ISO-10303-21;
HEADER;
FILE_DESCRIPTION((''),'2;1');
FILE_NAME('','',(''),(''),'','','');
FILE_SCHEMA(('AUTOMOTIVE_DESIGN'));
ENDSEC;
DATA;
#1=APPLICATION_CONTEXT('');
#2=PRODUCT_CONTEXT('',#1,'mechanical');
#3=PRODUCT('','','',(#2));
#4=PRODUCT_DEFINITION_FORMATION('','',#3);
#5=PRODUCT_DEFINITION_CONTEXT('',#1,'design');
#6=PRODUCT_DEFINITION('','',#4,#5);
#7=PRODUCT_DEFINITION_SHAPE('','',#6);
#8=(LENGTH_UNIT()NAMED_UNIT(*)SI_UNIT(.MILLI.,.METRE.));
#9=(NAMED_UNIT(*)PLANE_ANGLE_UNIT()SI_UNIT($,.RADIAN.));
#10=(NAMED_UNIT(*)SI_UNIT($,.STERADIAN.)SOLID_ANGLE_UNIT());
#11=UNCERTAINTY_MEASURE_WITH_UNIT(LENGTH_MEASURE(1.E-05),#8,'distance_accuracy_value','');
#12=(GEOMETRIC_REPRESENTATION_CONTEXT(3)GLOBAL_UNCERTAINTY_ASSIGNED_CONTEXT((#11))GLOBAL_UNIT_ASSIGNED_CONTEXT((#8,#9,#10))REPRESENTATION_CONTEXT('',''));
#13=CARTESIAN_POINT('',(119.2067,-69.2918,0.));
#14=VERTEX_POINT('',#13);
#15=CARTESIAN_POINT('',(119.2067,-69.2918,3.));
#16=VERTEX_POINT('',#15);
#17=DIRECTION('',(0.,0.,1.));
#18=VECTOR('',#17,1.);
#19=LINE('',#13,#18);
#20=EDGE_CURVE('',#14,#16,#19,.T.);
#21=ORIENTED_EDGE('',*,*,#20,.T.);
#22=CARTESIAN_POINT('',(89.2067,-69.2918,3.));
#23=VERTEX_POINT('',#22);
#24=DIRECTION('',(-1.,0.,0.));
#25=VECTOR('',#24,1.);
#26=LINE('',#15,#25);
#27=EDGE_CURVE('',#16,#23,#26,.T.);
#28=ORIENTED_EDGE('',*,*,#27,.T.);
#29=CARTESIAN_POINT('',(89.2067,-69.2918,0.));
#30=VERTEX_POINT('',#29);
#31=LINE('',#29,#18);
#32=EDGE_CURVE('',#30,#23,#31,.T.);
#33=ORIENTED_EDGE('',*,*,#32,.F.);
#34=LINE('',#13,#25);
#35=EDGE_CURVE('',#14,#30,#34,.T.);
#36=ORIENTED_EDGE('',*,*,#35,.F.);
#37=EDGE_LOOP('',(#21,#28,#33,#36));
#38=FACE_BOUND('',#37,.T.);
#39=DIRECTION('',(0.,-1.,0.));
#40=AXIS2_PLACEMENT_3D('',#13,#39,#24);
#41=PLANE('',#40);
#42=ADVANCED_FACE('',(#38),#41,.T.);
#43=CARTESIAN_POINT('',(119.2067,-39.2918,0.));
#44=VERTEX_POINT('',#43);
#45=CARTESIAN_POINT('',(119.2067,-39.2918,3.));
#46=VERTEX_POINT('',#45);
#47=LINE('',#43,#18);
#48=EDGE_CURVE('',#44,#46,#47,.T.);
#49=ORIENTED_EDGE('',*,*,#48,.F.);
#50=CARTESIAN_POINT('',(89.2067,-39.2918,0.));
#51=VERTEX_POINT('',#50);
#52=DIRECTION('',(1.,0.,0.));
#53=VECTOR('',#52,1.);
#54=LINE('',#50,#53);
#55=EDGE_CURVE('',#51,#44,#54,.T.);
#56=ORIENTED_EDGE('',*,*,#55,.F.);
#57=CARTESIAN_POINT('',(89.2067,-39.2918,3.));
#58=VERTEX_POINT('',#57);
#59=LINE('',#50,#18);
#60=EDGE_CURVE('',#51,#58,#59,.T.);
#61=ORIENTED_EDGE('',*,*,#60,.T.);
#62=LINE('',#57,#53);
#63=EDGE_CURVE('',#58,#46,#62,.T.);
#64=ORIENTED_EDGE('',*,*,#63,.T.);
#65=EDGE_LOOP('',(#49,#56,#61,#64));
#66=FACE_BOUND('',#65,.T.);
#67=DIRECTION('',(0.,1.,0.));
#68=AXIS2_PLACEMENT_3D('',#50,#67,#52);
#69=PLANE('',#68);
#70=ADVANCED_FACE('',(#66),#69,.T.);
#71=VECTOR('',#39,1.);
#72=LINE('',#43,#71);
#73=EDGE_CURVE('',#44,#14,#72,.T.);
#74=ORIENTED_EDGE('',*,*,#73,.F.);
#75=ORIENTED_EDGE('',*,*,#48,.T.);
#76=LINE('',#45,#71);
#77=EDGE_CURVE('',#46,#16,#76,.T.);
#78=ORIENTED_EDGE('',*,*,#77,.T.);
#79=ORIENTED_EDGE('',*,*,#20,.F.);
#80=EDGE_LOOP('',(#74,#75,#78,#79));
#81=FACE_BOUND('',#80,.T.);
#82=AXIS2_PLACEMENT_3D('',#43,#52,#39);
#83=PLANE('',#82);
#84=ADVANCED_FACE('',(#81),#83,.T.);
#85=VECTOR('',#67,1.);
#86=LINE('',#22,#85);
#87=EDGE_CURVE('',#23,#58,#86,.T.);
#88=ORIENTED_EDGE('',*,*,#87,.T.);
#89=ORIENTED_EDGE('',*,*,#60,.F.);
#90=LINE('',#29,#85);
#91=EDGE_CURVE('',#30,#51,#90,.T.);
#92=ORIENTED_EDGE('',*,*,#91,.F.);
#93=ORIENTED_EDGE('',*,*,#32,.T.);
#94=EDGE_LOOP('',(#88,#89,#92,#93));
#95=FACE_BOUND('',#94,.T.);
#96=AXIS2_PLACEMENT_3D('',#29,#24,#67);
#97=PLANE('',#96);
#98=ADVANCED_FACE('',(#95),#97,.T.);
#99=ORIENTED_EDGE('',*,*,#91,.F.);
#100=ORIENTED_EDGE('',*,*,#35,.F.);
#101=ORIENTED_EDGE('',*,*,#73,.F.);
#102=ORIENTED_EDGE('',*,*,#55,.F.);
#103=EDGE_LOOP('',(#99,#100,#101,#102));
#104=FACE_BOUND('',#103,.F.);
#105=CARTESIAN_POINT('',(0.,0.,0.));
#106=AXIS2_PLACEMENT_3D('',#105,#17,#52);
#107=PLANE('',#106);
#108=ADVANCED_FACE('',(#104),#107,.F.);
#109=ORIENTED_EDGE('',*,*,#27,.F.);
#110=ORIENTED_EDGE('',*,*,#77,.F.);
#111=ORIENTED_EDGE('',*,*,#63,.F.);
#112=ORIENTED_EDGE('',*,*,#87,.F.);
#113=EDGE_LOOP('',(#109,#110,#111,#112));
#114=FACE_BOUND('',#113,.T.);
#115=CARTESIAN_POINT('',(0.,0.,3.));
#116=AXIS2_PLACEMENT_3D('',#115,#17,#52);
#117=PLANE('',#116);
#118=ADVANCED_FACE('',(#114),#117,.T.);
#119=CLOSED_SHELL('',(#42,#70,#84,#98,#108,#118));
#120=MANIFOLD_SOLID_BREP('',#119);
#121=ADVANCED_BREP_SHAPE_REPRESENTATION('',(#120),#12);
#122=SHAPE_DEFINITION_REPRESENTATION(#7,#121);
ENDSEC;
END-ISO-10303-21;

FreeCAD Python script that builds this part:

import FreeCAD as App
import Part
import Sketcher
from FreeCAD import Vector
Q = App.Units.Quantity

doc = App.newDocument("Part")
body = doc.addObject("PartDesign::Body", "Body")

# Sketch on XY plane
sketch1 = body.newObject("Sketcher::SketchObject", "Sketch")
sketch1.AttachmentSupport = (doc.getObject("XY_Plane"), [""])
sketch1.MapMode = "FlatFace"
sketch1.addGeometry([
    Part.LineSegment(Vector(119, -39, 0), Vector(89, -39, 0)),
    Part.LineSegment(Vector(89, -39, 0), Vector(89, -69, 0)),
    Part.LineSegment(Vector(89, -69, 0), Vector(119, -69, 0)),
    Part.LineSegment(Vector(119, -69, 0), Vector(119, -39, 0)),
], False)
sketch1.addConstraint([
    Sketcher.Constraint("Coincident", 0, 2, 1, 1),
    Sketcher.Constraint("Coincident", 1, 2, 2, 1),
    Sketcher.Constraint("Coincident", 2, 2, 3, 1),
    Sketcher.Constraint("Coincident", 3, 2, 0, 1),
    Sketcher.Constraint("Horizontal", 0),
    Sketcher.Constraint("Vertical", 1),
    Sketcher.Constraint("Horizontal", 2),
    Sketcher.Constraint("Vertical", 3),
    Sketcher.Constraint("Equal", 2, 1),
    Sketcher.Constraint("DistanceX", 0, 2, 0, 1, Q("30 mm")),
    Sketcher.Constraint("DistanceX", -1, 1, 0, 2, Q("89.2067 mm")),
    Sketcher.Constraint("DistanceY", 0, 2, -1, 1, Q("39.2918 mm")),
])
pad1 = body.newObject("PartDesign::Pad", "Pad")
pad1.Profile = sketch1
pad1.Length = 3

doc.recompute()
